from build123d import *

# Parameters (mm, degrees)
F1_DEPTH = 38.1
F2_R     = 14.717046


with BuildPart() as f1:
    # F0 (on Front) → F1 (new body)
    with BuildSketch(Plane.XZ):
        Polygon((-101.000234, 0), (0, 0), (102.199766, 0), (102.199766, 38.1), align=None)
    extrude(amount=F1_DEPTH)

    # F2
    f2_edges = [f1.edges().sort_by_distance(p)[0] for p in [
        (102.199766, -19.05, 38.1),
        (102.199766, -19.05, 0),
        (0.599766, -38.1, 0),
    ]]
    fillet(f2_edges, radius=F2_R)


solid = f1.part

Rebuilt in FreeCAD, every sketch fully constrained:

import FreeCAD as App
import Part
import Sketcher
Q = App.Units.Quantity


def edges_at(feature, points):
    """Names of the edges that pass closest to the given points."""
    edges = feature.Shape.Edges
    near = lambda p: min(range(len(edges)), key=lambda i: edges[i].distToShape(Part.Vertex(*p))[0])
    return sorted({f"Edge{near(p) + 1}" for p in points})


def add_polygon(sketch, points):
    """Adds a closed chain of lines whose ends are joined by coincident constraints."""
    first, n = sketch.GeometryCount, len(points)
    for a, b in zip(points, points[1:] + points[:1]):
        sketch.addGeometry(Part.LineSegment(App.Vector(*a, 0), App.Vector(*b, 0)), False)
    for i in range(n):
        sketch.addConstraint(Sketcher.Constraint("Coincident", first + i, 2, first + (i + 1) % n, 1))

doc = App.newDocument("Part")
params = doc.addObject("Spreadsheet::Sheet", "Params")
for row, (alias, value) in enumerate([
    ("sketch1_width", "8 in"),
    ("sketch1_height", "1.5 in"),
    ("pad1_length", "1.5 in"),
    ("fillet_radius", "14.717046 mm"),
], start=1):
    params.set(f"A{row}", alias)
    params.set(f"B{row}", "=" + value)
    params.setAlias(f"B{row}", alias)

body = doc.addObject("PartDesign::Body", "Body")

sketch1 = body.newObject("Sketcher::SketchObject", "Sketch")
sketch1.AttachmentSupport = (doc.getObject("XZ_Plane"), [""])
sketch1.MapMode = "FlatFace"
add_polygon(sketch1, [(-101, 0), (102, 0), (102, 38)])
sketch1.addConstraint(Sketcher.Constraint("Horizontal", 0))
sketch1.addConstraint(Sketcher.Constraint("Vertical", 1))
sketch1.addConstraint(Sketcher.Constraint("PointOnObject", 0, 2, -1))
sketch1.addConstraint(Sketcher.Constraint("DistanceX", 0, 1, 0, 2, Q("8 in")))
sketch1.addConstraint(Sketcher.Constraint("DistanceY", 1, 1, 1, 2, Q("1.5 in")))
sketch1.addConstraint(Sketcher.Constraint("DistanceX", -1, 1, 0, 2, 102.199766))
sketch1.setExpression("Constraints[6]", "Params.sketch1_width")
sketch1.setExpression("Constraints[7]", "Params.sketch1_height")
pad1 = body.newObject("PartDesign::Pad", "Pad")
pad1.Profile = sketch1
pad1.setExpression("Length", "Params.pad1_length")
doc.recompute()

fillet = body.newObject("PartDesign::Fillet", "Fillet")
fillet.Base = (pad1, edges_at(pad1, [(102.2, -19.05, 38.1), (102.2, -19.05, 0), (0.6, -38.1, 0)]))
fillet.setExpression("Radius", "Params.fillet_radius")

doc.recompute()
